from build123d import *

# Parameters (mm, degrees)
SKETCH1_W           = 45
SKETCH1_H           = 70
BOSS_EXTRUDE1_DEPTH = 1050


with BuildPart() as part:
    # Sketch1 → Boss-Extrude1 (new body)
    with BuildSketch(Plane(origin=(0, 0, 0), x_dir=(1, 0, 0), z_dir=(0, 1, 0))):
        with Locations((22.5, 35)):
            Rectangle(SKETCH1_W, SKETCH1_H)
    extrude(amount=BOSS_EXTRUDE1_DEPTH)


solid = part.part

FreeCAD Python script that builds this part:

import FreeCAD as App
import Part
import Sketcher

V = App.Vector


def add_polygon(sketch, points):
    """Adds a closed chain of lines whose ends are joined by coincident constraints."""
    first, n = sketch.GeometryCount, len(points)
    for a, b in zip(points, points[1:] + points[:1]):
        sketch.addGeometry(Part.LineSegment(App.Vector(*a, 0), App.Vector(*b, 0)), False)
    for i in range(n):
        sketch.addConstraint(Sketcher.Constraint("Coincident", first + i, 2, first + (i + 1) % n, 1))

doc = App.newDocument("Part")
body = doc.addObject("PartDesign::Body", "Body")

sketch1 = body.newObject("Sketcher::SketchObject", "Sketch")
sketch1.AttachmentSupport = (doc.getObject("XZ_Plane"), [""])
sketch1.MapMode = "FlatFace"
add_polygon(sketch1, [(0, -70), (0, 0), (45, 0), (45, -70)])
sketch1.addConstraint(Sketcher.Constraint("Vertical", 0))
sketch1.addConstraint(Sketcher.Constraint("Horizontal", 1))
sketch1.addConstraint(Sketcher.Constraint("Vertical", 2))
sketch1.addConstraint(Sketcher.Constraint("Horizontal", 3))
sketch1.addConstraint(Sketcher.Constraint("Coincident", 0, 2, -1, 1))
sketch1.addConstraint(Sketcher.Constraint("DistanceX", 1, 1, 1, 2, 45.0))
sketch1.addConstraint(Sketcher.Constraint("DistanceY", 0, 1, 0, 2, 70.0))
pad1 = body.newObject("PartDesign::Pad", "Pad")
pad1.Profile = sketch1
pad1.Length = 1050
pad1.Reversed = True

doc.recompute()
